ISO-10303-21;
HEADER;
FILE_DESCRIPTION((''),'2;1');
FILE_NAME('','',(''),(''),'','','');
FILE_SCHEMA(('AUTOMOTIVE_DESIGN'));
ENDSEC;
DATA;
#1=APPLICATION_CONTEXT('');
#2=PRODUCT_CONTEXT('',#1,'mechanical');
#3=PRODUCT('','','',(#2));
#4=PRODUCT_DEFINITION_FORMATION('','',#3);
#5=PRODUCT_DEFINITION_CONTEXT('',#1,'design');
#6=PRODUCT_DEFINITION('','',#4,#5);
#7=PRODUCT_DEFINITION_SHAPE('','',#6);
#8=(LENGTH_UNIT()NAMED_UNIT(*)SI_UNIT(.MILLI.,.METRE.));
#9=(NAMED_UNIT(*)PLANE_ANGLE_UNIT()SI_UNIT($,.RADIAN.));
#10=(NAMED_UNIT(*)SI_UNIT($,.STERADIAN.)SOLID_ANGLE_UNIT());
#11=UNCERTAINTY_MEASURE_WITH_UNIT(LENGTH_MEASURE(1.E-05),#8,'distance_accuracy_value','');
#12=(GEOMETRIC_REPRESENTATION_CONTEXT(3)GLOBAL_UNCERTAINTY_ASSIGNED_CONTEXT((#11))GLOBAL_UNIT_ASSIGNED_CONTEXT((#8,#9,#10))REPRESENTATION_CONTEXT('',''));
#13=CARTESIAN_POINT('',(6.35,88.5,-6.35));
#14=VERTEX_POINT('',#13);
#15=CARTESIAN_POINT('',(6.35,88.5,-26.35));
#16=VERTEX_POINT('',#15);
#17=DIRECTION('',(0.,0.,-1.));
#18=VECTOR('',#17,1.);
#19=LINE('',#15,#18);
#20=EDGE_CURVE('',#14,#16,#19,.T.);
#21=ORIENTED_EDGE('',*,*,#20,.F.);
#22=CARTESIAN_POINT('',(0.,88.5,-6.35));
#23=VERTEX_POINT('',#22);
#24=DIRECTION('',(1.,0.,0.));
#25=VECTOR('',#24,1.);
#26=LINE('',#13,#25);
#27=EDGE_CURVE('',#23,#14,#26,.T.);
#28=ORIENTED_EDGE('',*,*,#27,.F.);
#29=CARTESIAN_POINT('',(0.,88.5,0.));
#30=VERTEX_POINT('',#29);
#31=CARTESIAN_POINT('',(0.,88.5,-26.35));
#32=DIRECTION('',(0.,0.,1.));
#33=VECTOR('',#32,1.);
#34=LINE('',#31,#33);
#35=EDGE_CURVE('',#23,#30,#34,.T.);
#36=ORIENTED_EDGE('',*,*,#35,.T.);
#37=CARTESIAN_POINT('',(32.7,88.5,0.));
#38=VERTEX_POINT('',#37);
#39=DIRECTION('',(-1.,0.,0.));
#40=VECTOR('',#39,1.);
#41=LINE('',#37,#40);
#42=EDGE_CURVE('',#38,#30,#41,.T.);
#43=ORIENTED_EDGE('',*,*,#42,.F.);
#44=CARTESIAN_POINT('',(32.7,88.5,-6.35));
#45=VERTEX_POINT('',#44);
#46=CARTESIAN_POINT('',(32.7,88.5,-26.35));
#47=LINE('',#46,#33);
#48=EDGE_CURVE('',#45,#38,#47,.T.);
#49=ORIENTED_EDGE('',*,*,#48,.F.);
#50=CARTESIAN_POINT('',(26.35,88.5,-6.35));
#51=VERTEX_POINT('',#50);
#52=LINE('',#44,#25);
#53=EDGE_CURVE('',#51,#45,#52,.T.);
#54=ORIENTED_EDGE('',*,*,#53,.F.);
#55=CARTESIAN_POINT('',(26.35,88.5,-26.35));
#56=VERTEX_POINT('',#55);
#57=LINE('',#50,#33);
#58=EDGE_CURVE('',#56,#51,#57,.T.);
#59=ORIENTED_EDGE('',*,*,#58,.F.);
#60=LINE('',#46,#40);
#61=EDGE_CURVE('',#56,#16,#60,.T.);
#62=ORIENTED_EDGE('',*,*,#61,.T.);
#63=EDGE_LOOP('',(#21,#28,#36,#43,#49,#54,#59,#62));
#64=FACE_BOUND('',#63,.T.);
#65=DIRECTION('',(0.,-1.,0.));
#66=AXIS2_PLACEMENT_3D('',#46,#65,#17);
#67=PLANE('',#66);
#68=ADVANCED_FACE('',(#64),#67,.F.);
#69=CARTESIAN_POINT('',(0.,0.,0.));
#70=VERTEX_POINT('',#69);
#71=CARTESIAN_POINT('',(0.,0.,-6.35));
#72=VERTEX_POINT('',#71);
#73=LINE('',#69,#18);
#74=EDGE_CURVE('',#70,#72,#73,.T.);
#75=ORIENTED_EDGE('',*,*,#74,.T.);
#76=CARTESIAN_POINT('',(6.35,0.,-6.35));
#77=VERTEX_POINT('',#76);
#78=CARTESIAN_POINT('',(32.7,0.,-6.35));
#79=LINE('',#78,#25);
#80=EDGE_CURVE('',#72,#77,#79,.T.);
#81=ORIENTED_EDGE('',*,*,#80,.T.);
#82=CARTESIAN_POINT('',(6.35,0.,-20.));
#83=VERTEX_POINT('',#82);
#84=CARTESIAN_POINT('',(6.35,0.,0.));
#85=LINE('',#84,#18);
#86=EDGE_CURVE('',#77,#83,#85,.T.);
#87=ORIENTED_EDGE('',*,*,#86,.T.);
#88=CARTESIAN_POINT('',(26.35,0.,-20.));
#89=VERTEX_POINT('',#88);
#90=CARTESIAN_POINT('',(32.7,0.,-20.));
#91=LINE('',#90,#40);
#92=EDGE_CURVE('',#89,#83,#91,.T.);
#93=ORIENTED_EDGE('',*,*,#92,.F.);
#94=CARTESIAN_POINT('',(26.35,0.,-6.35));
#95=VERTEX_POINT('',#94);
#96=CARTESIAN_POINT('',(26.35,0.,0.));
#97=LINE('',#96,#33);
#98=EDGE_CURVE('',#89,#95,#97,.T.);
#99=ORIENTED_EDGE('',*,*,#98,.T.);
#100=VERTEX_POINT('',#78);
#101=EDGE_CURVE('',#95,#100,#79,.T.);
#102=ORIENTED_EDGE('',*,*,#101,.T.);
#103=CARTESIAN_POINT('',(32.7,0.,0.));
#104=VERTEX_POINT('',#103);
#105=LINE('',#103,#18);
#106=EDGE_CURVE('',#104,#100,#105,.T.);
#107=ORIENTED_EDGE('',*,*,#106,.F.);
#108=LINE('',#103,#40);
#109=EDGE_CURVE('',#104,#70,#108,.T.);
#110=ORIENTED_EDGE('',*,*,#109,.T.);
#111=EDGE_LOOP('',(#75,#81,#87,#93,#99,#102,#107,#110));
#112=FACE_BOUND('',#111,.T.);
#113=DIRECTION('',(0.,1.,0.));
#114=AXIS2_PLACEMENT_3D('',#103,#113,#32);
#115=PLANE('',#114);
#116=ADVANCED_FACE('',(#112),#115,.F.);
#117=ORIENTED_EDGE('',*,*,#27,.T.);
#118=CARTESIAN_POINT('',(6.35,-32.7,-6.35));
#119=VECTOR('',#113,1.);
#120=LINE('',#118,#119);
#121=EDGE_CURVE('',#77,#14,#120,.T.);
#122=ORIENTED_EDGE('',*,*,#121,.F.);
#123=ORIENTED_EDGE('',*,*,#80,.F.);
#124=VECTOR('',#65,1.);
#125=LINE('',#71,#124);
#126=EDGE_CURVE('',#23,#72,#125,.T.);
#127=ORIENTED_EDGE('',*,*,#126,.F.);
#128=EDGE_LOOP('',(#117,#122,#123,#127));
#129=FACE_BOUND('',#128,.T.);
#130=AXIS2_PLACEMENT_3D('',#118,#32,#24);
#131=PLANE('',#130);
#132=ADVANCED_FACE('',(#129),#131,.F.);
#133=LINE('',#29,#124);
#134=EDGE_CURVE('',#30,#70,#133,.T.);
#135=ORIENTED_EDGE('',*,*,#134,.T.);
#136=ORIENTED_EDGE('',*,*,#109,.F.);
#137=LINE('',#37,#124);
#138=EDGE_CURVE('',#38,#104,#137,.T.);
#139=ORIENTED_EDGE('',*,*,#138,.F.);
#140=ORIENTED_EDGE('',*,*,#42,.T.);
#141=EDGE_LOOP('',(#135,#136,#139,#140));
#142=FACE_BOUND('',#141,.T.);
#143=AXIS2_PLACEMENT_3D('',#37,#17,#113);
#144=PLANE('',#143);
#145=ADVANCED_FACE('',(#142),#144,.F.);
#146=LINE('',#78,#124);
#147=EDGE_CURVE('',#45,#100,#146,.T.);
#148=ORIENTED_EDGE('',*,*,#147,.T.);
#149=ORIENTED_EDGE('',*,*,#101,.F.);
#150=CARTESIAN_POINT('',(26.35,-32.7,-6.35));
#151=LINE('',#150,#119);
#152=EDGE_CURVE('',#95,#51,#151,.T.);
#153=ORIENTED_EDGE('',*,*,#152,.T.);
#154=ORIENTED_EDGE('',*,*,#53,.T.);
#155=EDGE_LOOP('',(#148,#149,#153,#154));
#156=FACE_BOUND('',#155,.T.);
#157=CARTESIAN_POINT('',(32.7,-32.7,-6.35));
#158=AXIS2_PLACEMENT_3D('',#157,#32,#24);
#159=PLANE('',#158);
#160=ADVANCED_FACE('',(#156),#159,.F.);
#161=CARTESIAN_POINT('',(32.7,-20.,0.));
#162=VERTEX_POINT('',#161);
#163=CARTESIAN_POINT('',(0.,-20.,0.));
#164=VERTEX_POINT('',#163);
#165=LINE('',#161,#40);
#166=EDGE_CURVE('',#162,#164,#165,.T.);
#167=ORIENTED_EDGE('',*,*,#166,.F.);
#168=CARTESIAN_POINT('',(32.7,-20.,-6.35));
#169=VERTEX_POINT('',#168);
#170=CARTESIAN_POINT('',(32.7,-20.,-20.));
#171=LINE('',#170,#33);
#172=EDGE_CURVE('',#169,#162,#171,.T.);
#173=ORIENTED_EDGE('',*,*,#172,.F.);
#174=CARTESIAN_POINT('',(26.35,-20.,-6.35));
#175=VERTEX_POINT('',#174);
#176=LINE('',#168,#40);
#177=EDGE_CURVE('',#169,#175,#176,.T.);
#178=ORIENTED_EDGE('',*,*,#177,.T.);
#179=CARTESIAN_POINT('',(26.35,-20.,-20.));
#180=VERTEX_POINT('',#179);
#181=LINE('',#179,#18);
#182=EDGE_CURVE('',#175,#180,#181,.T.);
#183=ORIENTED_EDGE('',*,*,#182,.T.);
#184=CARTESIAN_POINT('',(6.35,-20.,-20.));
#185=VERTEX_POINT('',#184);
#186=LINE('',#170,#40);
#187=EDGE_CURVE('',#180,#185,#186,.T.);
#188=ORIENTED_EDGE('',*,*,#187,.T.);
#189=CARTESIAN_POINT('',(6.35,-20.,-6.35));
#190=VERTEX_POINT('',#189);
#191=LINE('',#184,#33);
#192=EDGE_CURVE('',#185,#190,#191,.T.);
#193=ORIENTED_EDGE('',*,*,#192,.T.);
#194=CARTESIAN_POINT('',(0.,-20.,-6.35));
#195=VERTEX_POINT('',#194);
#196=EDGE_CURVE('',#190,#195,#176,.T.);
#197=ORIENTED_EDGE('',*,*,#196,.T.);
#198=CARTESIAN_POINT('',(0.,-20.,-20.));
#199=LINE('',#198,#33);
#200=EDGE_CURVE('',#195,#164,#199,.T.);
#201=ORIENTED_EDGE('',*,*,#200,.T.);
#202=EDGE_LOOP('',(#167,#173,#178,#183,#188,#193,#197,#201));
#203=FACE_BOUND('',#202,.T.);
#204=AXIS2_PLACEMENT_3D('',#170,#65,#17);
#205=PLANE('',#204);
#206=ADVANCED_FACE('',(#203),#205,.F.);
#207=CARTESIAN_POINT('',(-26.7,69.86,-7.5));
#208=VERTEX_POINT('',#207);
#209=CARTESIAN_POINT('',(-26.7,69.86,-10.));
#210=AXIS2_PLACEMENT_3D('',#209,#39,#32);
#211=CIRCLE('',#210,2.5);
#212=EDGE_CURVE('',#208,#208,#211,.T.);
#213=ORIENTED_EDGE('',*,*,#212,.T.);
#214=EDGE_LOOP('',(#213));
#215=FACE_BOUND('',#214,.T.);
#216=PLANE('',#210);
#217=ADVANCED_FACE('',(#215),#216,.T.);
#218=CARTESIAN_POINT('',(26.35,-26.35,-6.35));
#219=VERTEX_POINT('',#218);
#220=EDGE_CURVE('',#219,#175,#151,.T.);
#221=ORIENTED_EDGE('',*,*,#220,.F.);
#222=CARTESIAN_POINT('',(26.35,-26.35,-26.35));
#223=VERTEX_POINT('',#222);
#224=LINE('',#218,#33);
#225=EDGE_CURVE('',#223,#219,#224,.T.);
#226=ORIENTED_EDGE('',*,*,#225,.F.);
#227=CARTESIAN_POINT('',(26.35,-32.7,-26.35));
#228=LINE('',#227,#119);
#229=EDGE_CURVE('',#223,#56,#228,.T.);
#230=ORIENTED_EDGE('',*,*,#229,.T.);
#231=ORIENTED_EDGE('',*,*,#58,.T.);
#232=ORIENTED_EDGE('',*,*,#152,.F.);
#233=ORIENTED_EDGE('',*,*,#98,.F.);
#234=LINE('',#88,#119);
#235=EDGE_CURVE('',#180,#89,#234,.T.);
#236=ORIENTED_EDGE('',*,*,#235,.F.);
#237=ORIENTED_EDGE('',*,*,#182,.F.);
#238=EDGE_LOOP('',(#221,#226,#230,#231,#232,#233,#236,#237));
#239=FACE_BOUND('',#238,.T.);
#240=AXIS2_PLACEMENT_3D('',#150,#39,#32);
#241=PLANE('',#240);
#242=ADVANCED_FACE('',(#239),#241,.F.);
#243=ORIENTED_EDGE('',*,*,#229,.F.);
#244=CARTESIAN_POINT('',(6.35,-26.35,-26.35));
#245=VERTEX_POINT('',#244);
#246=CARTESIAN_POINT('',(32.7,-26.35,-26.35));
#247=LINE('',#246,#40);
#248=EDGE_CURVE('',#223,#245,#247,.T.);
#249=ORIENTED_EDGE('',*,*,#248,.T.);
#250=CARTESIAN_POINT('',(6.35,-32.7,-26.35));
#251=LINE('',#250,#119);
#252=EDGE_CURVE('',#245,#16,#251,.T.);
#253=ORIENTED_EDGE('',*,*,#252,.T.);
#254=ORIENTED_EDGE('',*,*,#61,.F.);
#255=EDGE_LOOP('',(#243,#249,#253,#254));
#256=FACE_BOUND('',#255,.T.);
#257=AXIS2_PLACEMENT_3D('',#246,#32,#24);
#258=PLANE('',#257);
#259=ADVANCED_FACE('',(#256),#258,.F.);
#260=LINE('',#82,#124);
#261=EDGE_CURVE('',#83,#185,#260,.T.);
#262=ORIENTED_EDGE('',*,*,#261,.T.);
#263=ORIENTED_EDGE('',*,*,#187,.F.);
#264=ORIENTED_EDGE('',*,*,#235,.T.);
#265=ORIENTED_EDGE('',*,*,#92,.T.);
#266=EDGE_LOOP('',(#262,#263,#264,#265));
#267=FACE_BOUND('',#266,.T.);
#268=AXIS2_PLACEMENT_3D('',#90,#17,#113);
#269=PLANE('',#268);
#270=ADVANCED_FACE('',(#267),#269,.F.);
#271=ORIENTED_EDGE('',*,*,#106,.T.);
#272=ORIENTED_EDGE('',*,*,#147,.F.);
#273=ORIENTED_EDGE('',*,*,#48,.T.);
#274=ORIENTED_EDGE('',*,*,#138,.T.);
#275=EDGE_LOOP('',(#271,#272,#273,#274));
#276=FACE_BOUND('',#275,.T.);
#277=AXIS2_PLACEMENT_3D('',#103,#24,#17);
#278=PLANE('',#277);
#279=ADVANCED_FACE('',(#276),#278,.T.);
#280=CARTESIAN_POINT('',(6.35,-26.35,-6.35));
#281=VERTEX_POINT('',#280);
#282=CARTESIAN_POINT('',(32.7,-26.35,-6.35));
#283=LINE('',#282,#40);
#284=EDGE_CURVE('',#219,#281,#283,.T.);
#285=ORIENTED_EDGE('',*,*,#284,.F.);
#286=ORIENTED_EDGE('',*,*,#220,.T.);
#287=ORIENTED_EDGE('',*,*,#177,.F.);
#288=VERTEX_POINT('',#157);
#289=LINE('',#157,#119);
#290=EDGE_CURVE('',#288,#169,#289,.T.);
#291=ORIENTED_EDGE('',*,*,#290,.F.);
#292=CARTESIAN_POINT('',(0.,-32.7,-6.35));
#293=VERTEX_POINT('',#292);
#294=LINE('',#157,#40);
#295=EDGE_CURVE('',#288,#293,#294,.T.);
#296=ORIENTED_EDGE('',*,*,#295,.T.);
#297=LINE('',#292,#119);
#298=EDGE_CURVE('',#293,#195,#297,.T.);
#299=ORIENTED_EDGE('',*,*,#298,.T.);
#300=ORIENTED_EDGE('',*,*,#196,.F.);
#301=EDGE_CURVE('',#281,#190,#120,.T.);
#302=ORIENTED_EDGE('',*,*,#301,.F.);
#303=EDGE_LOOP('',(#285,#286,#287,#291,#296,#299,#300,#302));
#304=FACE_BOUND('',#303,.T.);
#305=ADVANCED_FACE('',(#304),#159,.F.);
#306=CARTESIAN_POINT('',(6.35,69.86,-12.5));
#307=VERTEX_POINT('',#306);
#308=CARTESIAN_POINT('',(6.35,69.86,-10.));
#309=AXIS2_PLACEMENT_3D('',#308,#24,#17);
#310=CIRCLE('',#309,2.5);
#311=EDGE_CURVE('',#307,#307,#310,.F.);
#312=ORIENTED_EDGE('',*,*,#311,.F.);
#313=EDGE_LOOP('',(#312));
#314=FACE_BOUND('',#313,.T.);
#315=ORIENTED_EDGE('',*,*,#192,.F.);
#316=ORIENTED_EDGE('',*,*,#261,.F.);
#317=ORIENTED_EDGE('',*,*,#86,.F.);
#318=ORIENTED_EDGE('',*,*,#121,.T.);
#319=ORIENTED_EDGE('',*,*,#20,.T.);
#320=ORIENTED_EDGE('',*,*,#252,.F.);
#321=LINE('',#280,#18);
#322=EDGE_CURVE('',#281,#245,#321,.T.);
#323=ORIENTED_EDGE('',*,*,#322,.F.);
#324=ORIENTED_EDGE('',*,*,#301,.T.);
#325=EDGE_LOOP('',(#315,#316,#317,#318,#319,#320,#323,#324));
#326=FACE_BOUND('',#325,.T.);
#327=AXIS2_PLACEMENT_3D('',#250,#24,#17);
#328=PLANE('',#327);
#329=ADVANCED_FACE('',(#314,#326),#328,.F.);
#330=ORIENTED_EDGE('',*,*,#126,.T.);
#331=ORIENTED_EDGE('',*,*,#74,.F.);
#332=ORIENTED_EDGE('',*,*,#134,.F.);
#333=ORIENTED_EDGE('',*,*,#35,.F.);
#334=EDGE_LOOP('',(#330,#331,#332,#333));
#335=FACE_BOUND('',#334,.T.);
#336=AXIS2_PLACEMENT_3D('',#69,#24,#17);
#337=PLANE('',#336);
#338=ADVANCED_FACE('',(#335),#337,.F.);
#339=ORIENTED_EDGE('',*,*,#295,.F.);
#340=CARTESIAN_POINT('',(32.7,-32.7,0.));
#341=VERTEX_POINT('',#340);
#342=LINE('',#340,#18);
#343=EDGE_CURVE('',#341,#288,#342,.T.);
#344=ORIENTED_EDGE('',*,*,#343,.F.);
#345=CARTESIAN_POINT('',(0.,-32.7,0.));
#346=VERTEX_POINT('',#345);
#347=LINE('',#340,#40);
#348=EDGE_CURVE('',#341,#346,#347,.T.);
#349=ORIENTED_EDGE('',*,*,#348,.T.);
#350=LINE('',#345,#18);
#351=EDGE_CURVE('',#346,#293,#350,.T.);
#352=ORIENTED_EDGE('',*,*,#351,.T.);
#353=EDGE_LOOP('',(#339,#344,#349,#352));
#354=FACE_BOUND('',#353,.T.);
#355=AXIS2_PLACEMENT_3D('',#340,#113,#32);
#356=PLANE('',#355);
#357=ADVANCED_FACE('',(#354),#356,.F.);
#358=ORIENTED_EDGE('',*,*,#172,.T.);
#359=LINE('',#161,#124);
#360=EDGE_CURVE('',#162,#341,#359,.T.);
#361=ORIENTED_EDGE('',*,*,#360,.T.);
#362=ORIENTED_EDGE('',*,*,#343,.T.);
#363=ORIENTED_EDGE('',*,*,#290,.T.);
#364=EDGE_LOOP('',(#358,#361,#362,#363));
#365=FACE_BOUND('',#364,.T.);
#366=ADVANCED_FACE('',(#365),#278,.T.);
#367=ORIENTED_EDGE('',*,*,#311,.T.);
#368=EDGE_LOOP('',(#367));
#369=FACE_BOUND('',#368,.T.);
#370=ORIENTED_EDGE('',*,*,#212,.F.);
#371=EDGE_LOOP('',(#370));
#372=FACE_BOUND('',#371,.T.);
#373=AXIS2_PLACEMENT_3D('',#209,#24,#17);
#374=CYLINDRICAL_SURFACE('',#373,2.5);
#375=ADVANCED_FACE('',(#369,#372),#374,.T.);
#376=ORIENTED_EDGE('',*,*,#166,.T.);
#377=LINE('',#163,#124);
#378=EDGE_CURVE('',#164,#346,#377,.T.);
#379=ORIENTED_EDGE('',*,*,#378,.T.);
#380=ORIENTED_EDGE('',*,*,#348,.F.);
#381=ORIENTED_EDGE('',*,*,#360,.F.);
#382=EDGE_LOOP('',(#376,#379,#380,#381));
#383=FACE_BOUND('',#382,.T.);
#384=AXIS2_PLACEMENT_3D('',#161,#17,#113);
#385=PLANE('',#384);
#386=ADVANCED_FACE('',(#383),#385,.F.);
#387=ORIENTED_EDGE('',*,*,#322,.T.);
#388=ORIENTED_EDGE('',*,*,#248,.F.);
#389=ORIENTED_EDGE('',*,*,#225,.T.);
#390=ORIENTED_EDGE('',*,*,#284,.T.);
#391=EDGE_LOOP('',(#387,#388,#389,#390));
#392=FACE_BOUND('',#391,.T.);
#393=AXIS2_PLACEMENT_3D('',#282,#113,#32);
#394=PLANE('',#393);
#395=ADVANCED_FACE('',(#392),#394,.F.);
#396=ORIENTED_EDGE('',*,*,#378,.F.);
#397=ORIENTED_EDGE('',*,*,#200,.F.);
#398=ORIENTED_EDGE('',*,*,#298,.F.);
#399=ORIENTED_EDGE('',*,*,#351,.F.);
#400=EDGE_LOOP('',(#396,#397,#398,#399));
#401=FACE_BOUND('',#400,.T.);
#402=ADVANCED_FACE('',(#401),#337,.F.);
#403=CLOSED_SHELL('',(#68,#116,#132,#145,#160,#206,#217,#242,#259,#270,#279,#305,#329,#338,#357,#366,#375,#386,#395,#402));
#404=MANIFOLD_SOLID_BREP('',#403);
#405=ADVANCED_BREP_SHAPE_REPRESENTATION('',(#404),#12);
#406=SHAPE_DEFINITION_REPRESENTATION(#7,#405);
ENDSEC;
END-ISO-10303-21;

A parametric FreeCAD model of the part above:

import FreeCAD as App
import Part
import Sketcher

doc = App.newDocument("Part")
body = doc.addObject("PartDesign::Body", "Body")

sketch1 = body.newObject("Sketcher::SketchObject", "Sketch")
sketch1.AttachmentSupport = (doc.getObject("YZ_Plane"), [""])
sketch1.MapMode = "FlatFace"
sketch1.addGeometry([
    Part.LineSegment(App.Vector(0, 0, 0), App.Vector(0, -20, 0)),
    Part.LineSegment(App.Vector(0, -20, 0), App.Vector(-20, -20, 0)),
    Part.LineSegment(App.Vector(-20, -20, 0), App.Vector(-20, 0, 0)),
    Part.LineSegment(App.Vector(-20, 0, 0), App.Vector(-32.7, 0, 0)),
    Part.LineSegment(App.Vector(-32.7, 0, 0), App.Vector(-32.7, -6.35, 0)),
    Part.LineSegment(App.Vector(-32.7, -6.35, 0), App.Vector(-26.35, -6.35, 0)),
    Part.LineSegment(App.Vector(-26.35, -6.35, 0), App.Vector(-26.35, -26.35, 0)),
    Part.LineSegment(App.Vector(-26.35, -26.35, 0), App.Vector(88.5, -26.35, 0)),
    Part.LineSegment(App.Vector(88.5, -26.35, 0), App.Vector(88.5, 0, 0)),
    Part.LineSegment(App.Vector(88.5, 0, 0), App.Vector(0, 0, 0)),
], False)
sketch1.addConstraint([
    Sketcher.Constraint("Coincident", 0, 2, 1, 1),
    Sketcher.Constraint("Coincident", 1, 2, 2, 1),
    Sketcher.Constraint("Coincident", 2, 2, 3, 1),
    Sketcher.Constraint("Coincident", 3, 2, 4, 1),
    Sketcher.Constraint("Coincident", 4, 2, 5, 1),
    Sketcher.Constraint("Coincident", 5, 2, 6, 1),
    Sketcher.Constraint("Coincident", 6, 2, 7, 1),
    Sketcher.Constraint("Coincident", 7, 2, 8, 1),
    Sketcher.Constraint("Coincident", 8, 2, 9, 1),
    Sketcher.Constraint("Coincident", 9, 2, 0, 1),
    Sketcher.Constraint("Vertical", 0),
    Sketcher.Constraint("Horizontal", 1),
    Sketcher.Constraint("Vertical", 2),
    Sketcher.Constraint("Horizontal", 3),
    Sketcher.Constraint("Vertical", 4),
    Sketcher.Constraint("Horizontal", 5),
    Sketcher.Constraint("Vertical", 6),
    Sketcher.Constraint("Horizontal", 7),
    Sketcher.Constraint("Vertical", 8),
    Sketcher.Constraint("Horizontal", 9),
    Sketcher.Constraint("Coincident", 9, 2, -1, 1),
    Sketcher.Constraint("PointOnObject", 2, 2, -1),
    Sketcher.Constraint("Equal", 1, 0),
    Sketcher.Constraint("Equal", 5, 4),
    Sketcher.Constraint("Equal", 2, 6),
    Sketcher.Constraint("DistanceX", 1, 2, 1, 1, 20.0),
    Sketcher.Constraint("DistanceX", 3, 2, 3, 1, 12.7),
    Sketcher.Constraint("DistanceX", 9, 2, 9, 1, 88.5),
    Sketcher.Constraint("DistanceX", 5, 1, 5, 2, 6.35),
])
pad1 = body.newObject("PartDesign::Pad", "Pad")
pad1.Profile = sketch1
pad1.Length = 32.7

sketch2 = body.newObject("Sketcher::SketchObject", "Sketch001")
sketch2.AttachmentSupport = (doc.getObject("XZ_Plane"), [""])
sketch2.MapMode = "FlatFace"
sketch2.AttachmentOffset = App.Placement(App.Vector(0, 0, -88.5), App.Rotation())
sketch2.addGeometry([
    Part.LineSegment(App.Vector(0, -26.35, 0), App.Vector(0, -6.35, 0)),
    Part.LineSegment(App.Vector(0, -6.35, 0), App.Vector(6.35, -6.35, 0)),
    Part.LineSegment(App.Vector(6.35, -6.35, 0), App.Vector(6.35, -26.35, 0)),
    Part.LineSegment(App.Vector(6.35, -26.35, 0), App.Vector(0, -26.35, 0)),
    Part.LineSegment(App.Vector(26.35, -26.35, 0), App.Vector(26.35, -6.35, 0)),
    Part.LineSegment(App.Vector(26.35, -6.35, 0), App.Vector(32.7, -6.35, 0)),
    Part.LineSegment(App.Vector(32.7, -6.35, 0), App.Vector(32.7, -26.35, 0)),
    Part.LineSegment(App.Vector(32.7, -26.35, 0), App.Vector(26.35, -26.35, 0)),
], False)
sketch2.addConstraint([
    Sketcher.Constraint("Coincident", 0, 2, 1, 1),
    Sketcher.Constraint("Coincident", 1, 2, 2, 1),
    Sketcher.Constraint("Coincident", 2, 2, 3, 1),
    Sketcher.Constraint("Coincident", 3, 2, 0, 1),
    Sketcher.Constraint("Coincident", 4, 2, 5, 1),
    Sketcher.Constraint("Coincident", 5, 2, 6, 1),
    Sketcher.Constraint("Coincident", 6, 2, 7, 1),
    Sketcher.Constraint("Coincident", 7, 2, 4, 1),
    Sketcher.Constraint("Vertical", 0),
    Sketcher.Constraint("Horizontal", 1),
    Sketcher.Constraint("Vertical", 2),
    Sketcher.Constraint("Horizontal", 3),
    Sketcher.Constraint("Vertical", 4),
    Sketcher.Constraint("Horizontal", 5),
    Sketcher.Constraint("Vertical", 6),
    Sketcher.Constraint("Horizontal", 7),
    Sketcher.Constraint("PointOnObject", 0, 2, -2),
    Sketcher.Constraint("Horizontal", 1, 2, 4, 2),
    Sketcher.Constraint("Horizontal", 3, 2, 6, 2),
    Sketcher.Constraint("Equal", 3, 5),
    Sketcher.Constraint("DistanceY", 0, 1, 0, 2, 20.0),
    Sketcher.Constraint("DistanceX", 1, 2, 4, 2, 20.0),
    Sketcher.Constraint("DistanceX", 1, 1, 1, 2, 6.35),
    Sketcher.Constraint("DistanceY", 0, 2, -1, 1, 6.35),
])
pocket1 = body.newObject("PartDesign::Pocket", "Pocket")
pocket1.Profile = sketch2
pocket1.Type = "ThroughAll"
pocket1.Reversed = True

sketch3 = body.newObject("Sketcher::SketchObject", "Sketch002")
sketch3.AttachmentSupport = (doc.getObject("YZ_Plane"), [""])
sketch3.MapMode = "FlatFace"
sketch3.AttachmentOffset = App.Placement(App.Vector(0, 0, 6.35), App.Rotation())
sketch3.addGeometry(Part.Circle(App.Vector(69.86, -10, 0), App.Vector(0, 0, 1), 2.5), False)
sketch3.addConstraint([
    Sketcher.Constraint("Diameter", 0, 5.0),
    Sketcher.Constraint("DistanceY", 0, 3, -1, 1, 10.0),
    Sketcher.Constraint("DistanceX", -1, 1, 0, 3, 69.86),
])
pad2 = body.newObject("PartDesign::Pad", "Pad001")
pad2.Profile = sketch3
pad2.Length = 33.05
pad2.Reversed = True

doc.recompute()
